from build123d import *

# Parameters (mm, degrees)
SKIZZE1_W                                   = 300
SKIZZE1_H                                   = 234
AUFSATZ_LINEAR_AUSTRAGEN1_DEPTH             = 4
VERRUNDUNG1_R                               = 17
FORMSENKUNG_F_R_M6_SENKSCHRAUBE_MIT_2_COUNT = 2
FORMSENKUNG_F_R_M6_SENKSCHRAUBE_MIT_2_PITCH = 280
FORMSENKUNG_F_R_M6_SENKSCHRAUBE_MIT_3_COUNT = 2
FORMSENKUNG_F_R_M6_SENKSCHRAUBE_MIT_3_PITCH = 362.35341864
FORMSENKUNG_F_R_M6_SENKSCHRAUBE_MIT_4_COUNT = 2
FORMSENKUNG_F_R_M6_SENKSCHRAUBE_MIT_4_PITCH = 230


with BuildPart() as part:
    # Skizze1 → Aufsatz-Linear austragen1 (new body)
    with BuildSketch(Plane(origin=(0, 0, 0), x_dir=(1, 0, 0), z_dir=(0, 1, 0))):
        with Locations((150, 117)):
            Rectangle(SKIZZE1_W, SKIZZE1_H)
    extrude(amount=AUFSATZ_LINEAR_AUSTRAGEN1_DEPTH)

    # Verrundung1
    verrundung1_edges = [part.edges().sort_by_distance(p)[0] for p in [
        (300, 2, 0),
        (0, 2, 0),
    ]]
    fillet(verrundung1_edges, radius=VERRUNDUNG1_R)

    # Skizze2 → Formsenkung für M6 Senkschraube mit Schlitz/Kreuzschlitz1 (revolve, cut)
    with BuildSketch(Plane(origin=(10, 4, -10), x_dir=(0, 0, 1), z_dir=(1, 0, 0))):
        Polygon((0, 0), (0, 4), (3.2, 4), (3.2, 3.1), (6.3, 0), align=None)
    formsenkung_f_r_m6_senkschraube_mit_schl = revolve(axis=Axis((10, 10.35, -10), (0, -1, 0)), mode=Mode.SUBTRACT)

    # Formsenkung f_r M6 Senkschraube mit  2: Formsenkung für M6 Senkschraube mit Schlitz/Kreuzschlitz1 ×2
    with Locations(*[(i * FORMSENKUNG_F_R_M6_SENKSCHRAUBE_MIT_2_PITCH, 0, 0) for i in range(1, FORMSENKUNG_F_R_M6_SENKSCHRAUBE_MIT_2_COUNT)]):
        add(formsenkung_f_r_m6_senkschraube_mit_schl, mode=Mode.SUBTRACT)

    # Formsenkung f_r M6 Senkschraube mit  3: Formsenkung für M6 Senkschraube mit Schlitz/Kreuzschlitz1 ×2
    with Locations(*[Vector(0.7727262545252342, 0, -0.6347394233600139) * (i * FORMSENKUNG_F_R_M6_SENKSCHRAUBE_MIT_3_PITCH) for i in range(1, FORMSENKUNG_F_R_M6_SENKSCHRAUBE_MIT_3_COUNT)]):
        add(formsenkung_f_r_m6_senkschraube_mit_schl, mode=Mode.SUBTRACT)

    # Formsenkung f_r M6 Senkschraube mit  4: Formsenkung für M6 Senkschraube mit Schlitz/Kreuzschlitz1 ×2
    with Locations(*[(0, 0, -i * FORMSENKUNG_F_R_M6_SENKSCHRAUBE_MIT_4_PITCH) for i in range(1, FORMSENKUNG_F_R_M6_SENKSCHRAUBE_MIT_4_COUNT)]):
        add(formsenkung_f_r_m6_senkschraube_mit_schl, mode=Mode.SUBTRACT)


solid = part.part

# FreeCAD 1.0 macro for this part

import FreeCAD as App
import Part
import Sketcher

V = App.Vector
Q = App.Units.Quantity


def edges_at(feature, points):
    """Names of the edges that pass closest to the given points."""
    edges = feature.Shape.Edges
    near = lambda p: min(range(len(edges)), key=lambda i: edges[i].distToShape(Part.Vertex(*p))[0])
    return sorted({f"Edge{near(p) + 1}" for p in points})


def add_polygon(sketch, points):
    """Adds a closed chain of lines whose ends are joined by coincident constraints."""
    first, n = sketch.GeometryCount, len(points)
    for a, b in zip(points, points[1:] + points[:1]):
        sketch.addGeometry(Part.LineSegment(App.Vector(*a, 0), App.Vector(*b, 0)), False)
    for i in range(n):
        sketch.addConstraint(Sketcher.Constraint("Coincident", first + i, 2, first + (i + 1) % n, 1))

doc = App.newDocument("Part")
params = doc.addObject("Spreadsheet::Sheet", "Params")
for row, (alias, value) in enumerate([
    ("sketch1_width", "300 mm"),
    ("sketch1_height", "234 mm"),
    ("pad1_length", "4 mm"),
    ("fillet_radius", "17 mm"),
    ("sketch2_width", "4 mm"),
    ("sketch2_width2", "0.9 mm"),
    ("sketch2_height", "6.3 mm"),
    ("groove_angle", "360 deg"),
    ("linearpattern_pitch", "280 mm"),
    ("linearpattern2_pitch", "362.353419 mm"),
    ("linearpattern3_pitch", "230 mm"),
], start=1):
    params.set(f"A{row}", alias)
    params.set(f"B{row}", "=" + value)
    params.setAlias(f"B{row}", alias)

body = doc.addObject("PartDesign::Body", "Body")

# Sketch on XZ plane
sketch1 = body.newObject("Sketcher::SketchObject", "Sketch")
sketch1.AttachmentSupport = (doc.getObject("XZ_Plane"), [""])
sketch1.MapMode = "FlatFace"
add_polygon(sketch1, [(0, -234), (0, 0), (300, 0), (300, -234)])  # lines 0-3
sketch1.addConstraint([
    Sketcher.Constraint("Vertical", 0),
    Sketcher.Constraint("Horizontal", 1),
    Sketcher.Constraint("Vertical", 2),
    Sketcher.Constraint("Horizontal", 3),
    Sketcher.Constraint("Coincident", 0, 2, -1, 1),
    Sketcher.Constraint("DistanceX", 1, 1, 1, 2, Q("300 mm")),
    Sketcher.Constraint("DistanceY", 0, 1, 0, 2, Q("234 mm")),
])
sketch1.setExpression("Constraints[9]", "Params.sketch1_width")
sketch1.setExpression("Constraints[10]", "Params.sketch1_height")
pad1 = body.newObject("PartDesign::Pad", "Pad")
pad1.Profile = sketch1
pad1.setExpression("Length", "Params.pad1_length")
pad1.Reversed = True
doc.recompute()

fillet = body.newObject("PartDesign::Fillet", "Fillet")
fillet.Base = (pad1, edges_at(pad1, [(300, 2, 0), (0, 2, 0)]))
fillet.setExpression("Radius", "Params.fillet_radius")

# Sketch on YZ plane
sketch2 = body.newObject("Sketcher::SketchObject", "Sketch001")
sketch2.AttachmentSupport = (doc.getObject("YZ_Plane"), [""])
sketch2.MapMode = "FlatFace"
sketch2.AttachmentOffset = App.Placement(V(0, 0, 10), App.Rotation())
add_polygon(sketch2, [(0, -10), (4, -10), (4, -3.7), (0.9, -6.8), (0, -6.8)])  # lines 0-4
sketch2.addGeometry(Part.LineSegment(V(4, -10, 0), V(0, -10, 0)), True)  # axis
sketch2.addConstraint([
    Sketcher.Constraint("Horizontal", 0),
    Sketcher.Constraint("Vertical", 1),
    Sketcher.Constraint("Horizontal", 3),
    Sketcher.Constraint("Vertical", 4),
    Sketcher.Constraint("Horizontal", 5),
    Sketcher.Constraint("Coincident", 5, 1, 0, 2),
    Sketcher.Constraint("PointOnObject", 3, 2, -2),
    Sketcher.Constraint("PointOnObject", 5, 2, -2),
    Sketcher.Constraint("DistanceX", 0, 1, 0, 2, Q("4 mm")),
    Sketcher.Constraint("Angle", 2, Q("-135 deg")),
    Sketcher.Constraint("DistanceX", 3, 2, 3, 1, Q("0.9 mm")),
    Sketcher.Constraint("DistanceY", 1, 1, 1, 2, Q("6.3 mm")),
    Sketcher.Constraint("DistanceY", 0, 2, -1, 1, Q("10 mm")),
])
sketch2.setExpression("Constraints[13]", "Params.sketch2_width")
sketch2.setExpression("Constraints[15]", "Params.sketch2_width2")
sketch2.setExpression("Constraints[16]", "Params.sketch2_height")
groove = body.newObject("PartDesign::Groove", "Groove")
groove.Profile = sketch2
groove.ReferenceAxis = (sketch2, ["Axis0"])
groove.setExpression("Angle", "Params.groove_angle")
doc.recompute()

linearpattern = body.newObject("PartDesign::LinearPattern", "LinearPattern")
linearpattern.Originals = [groove]
linearpattern.Direction = (doc.getObject("X_Axis"), [""])
linearpattern.Mode = "offset"
linearpattern.setExpression("Offset", "Params.linearpattern_pitch")
linearpattern.Occurrences = 2
body.Tip = linearpattern
doc.recompute()

datumline = body.newObject("PartDesign::Line", "DatumLine")
datumline.Placement = App.Placement(V(0, 0, 0), App.Rotation(V(0, 0, 1), V(0.772726255, 0, -0.634739423)))
linearpattern2 = body.newObject("PartDesign::LinearPattern", "LinearPattern001")
linearpattern2.Originals = [groove]
linearpattern2.Direction = (datumline, [""])
linearpattern2.Mode = "offset"
linearpattern2.setExpression("Offset", "Params.linearpattern2_pitch")
linearpattern2.Occurrences = 2
body.Tip = linearpattern2
doc.recompute()

linearpattern3 = body.newObject("PartDesign::LinearPattern", "LinearPattern002")
linearpattern3.Originals = [groove]
linearpattern3.Direction = (doc.getObject("Z_Axis"), [""])
linearpattern3.Mode = "offset"
linearpattern3.setExpression("Offset", "Params.linearpattern3_pitch")
linearpattern3.Occurrences = 2
linearpattern3.Reversed = True
body.Tip = linearpattern3

doc.recompute()
